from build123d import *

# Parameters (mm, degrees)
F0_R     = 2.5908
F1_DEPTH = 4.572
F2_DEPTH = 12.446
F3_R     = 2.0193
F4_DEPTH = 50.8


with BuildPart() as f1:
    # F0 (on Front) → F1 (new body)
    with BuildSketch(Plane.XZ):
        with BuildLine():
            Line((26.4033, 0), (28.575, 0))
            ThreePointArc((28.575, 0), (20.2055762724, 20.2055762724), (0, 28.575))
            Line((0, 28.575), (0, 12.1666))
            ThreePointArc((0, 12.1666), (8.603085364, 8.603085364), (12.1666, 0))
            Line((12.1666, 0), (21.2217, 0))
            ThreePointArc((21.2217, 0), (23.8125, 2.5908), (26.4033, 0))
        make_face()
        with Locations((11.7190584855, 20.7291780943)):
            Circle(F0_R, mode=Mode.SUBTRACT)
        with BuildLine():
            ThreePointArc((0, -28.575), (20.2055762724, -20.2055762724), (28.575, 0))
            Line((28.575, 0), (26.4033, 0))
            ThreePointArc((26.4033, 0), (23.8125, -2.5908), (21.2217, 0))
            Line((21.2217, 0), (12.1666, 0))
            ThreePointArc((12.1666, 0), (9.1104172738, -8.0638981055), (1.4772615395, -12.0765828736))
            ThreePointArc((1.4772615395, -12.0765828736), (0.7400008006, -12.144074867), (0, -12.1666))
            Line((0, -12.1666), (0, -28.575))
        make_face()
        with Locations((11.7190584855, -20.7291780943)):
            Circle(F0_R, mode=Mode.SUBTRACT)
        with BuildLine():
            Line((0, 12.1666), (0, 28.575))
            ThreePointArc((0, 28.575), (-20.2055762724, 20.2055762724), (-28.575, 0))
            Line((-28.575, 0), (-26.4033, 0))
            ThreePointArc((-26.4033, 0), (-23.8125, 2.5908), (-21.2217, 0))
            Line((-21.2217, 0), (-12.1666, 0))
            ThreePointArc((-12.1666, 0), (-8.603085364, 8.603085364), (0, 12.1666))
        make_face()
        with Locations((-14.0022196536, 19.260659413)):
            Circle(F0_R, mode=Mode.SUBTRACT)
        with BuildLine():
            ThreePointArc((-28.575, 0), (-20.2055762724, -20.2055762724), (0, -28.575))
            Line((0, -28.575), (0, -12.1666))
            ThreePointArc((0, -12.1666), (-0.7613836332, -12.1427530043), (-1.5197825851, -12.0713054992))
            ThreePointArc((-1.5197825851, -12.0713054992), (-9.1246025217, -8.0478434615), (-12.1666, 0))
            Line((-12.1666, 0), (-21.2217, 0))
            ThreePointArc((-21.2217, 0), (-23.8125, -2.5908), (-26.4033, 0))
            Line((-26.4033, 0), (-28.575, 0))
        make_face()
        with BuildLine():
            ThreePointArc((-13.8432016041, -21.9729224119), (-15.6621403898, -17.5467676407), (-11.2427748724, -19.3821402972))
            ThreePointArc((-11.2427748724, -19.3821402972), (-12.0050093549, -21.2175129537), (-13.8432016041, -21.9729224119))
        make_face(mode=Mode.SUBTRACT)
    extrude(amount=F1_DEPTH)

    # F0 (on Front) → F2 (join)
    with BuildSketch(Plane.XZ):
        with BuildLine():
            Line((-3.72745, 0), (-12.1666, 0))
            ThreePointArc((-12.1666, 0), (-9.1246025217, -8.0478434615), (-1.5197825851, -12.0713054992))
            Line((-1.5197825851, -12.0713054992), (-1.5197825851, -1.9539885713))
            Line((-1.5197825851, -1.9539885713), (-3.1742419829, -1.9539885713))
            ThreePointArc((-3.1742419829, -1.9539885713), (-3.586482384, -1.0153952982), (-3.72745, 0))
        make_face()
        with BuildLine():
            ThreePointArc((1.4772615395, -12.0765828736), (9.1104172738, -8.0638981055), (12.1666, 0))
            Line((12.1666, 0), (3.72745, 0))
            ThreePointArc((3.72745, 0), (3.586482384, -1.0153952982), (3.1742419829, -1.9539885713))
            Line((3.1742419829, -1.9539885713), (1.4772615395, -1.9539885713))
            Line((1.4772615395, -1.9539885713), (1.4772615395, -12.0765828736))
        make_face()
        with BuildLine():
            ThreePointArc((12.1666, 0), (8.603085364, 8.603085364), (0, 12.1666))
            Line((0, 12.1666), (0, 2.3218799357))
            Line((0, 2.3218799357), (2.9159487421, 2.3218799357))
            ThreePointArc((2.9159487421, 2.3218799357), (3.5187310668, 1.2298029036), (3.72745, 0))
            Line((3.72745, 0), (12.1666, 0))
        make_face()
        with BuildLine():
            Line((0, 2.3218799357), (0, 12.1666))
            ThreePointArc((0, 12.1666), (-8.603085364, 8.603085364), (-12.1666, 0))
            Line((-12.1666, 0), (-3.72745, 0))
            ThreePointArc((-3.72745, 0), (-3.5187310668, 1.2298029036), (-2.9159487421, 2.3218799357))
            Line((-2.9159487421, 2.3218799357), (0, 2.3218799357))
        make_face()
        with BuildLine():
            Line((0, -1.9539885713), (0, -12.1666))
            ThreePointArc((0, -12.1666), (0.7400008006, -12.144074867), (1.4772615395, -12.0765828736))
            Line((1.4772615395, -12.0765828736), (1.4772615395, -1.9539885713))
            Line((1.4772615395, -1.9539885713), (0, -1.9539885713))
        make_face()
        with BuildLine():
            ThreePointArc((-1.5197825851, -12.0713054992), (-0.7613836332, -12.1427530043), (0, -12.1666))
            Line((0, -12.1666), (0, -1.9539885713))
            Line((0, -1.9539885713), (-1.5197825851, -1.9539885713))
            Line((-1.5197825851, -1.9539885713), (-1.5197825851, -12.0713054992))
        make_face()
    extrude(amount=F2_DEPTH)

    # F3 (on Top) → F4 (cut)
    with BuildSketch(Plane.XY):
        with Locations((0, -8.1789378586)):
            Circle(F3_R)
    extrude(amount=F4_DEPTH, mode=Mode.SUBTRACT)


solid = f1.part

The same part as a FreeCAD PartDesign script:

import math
import FreeCAD as App
import Part
import Sketcher
from FreeCAD import Vector
Q = App.Units.Quantity

doc = App.newDocument("Part")
params = doc.addObject("Spreadsheet::Sheet", "Params")
for row, (alias, value) in enumerate([
    ("sketch1_diameter", "0.204 in"),
    ("sketch1_radius", "1.125 in"),
    ("sketch1_radius2", "0.479 in"),
    ("pad1_length", "0.18 in"),
    ("sketch2_radius", "0.479 in"),
    ("pad2_length", "0.49 in"),
    ("sketch3_diameter", "0.159 in"),
    ("pocket1_length", "2 in"),
], start=1):
    params.set(f"A{row}", alias)
    params.set(f"B{row}", "=" + value)
    params.setAlias(f"B{row}", alias)

body = doc.addObject("PartDesign::Body", "Body")

sketch1 = body.newObject("Sketcher::SketchObject", "Sketch")
sketch1.AttachmentSupport = (doc.getObject("XZ_Plane"), [""])
sketch1.MapMode = "FlatFace"
sketch1.addGeometry([
    Part.ArcOfCircle(Part.Circle(Vector(0, 0, 0), Vector(0, 0, 1), 28.6), math.radians(0), math.radians(90)),
    Part.ArcOfCircle(Part.Circle(Vector(0, 0, 0), Vector(0, 0, 1), 28.6), math.radians(90), math.radians(180)),
    Part.ArcOfCircle(Part.Circle(Vector(0, 0, 0), Vector(0, 0, 1), 28.6), math.radians(180), math.radians(270)),
    Part.ArcOfCircle(Part.Circle(Vector(0, 0, 0), Vector(0, 0, 1), 28.6), math.radians(-90), math.radians(0)),
    Part.ArcOfCircle(Part.Circle(Vector(-13.8, -19.4, 0), Vector(0, 0, 1), 2.6), math.radians(-90), math.radians(0)),
    Part.ArcOfCircle(Part.Circle(Vector(-13.8, -19.4, 0), Vector(0, 0, 1), 2.6), math.radians(0), math.radians(270)),
    Part.Circle(Vector(11.7, -20.7, 0), Vector(0, 0, 1), 2.6),
    Part.Circle(Vector(-23.8, 0, 0), Vector(0, 0, 1), 2.6),
    Part.Circle(Vector(-14, 19.3, 0), Vector(0, 0, 1), 2.6),
    Part.ArcOfCircle(Part.Circle(Vector(0, 0, 0), Vector(0, 0, 1), 12.2), math.radians(-90), math.radians(-83.03)),
    Part.ArcOfCircle(Part.Circle(Vector(0, 0, 0), Vector(0, 0, 1), 12.2), math.radians(-97.18), math.radians(-90)),
    Part.ArcOfCircle(Part.Circle(Vector(0, 0, 0), Vector(0, 0, 1), 12.2), math.radians(90), math.radians(263)),
    Part.ArcOfCircle(Part.Circle(Vector(0, 0, 0), Vector(0, 0, 1), 12.2), math.radians(0), math.radians(90)),
    Part.ArcOfCircle(Part.Circle(Vector(0, 0, 0), Vector(0, 0, 1), 12.2), math.radians(-83), math.radians(0)),
    Part.Circle(Vector(23.8, 0, 0), Vector(0, 0, 1), 2.6),
    Part.Circle(Vector(11.7, 20.7, 0), Vector(0, 0, 1), 2.6),
], False)
sketch1.addConstraint([
    Sketcher.Constraint("Tangent", 0, 2, 1, 1),
    Sketcher.Constraint("Tangent", 1, 2, 2, 1),
    Sketcher.Constraint("Tangent", 2, 2, 3, 1),
    Sketcher.Constraint("Tangent", 3, 2, 0, 1),
    Sketcher.Constraint("Tangent", 4, 1, 5, 2),
    Sketcher.Constraint("Coincident", 5, 1, 4, 2),
    Sketcher.Constraint("Tangent", 9, 1, 10, 2),
    Sketcher.Constraint("Tangent", 10, 1, 11, 2),
    Sketcher.Constraint("Tangent", 11, 1, 12, 2),
    Sketcher.Constraint("Tangent", 12, 1, 13, 2),
    Sketcher.Constraint("Tangent", 13, 1, 9, 2),
    Sketcher.Constraint("Coincident", 0, 3, -1, 1),
    Sketcher.Constraint("Coincident", 9, 3, -1, 1),
    Sketcher.Constraint("Coincident", 11, 3, -1, 1),
    Sketcher.Constraint("Equal", 0, 1),
    Sketcher.Constraint("Equal", 5, 6),
    Sketcher.Constraint("Equal", 6, 7),
    Sketcher.Constraint("Equal", 7, 8),
    Sketcher.Constraint("Equal", 8, 14),
    Sketcher.Constraint("Equal", 14, 15),
    Sketcher.Constraint("Symmetric", 7, 3, 14, 3, -1, 1),
    Sketcher.Constraint("Symmetric", 6, 3, 15, 3, -1),
    Sketcher.Constraint("PointOnObject", 7, 3, -1),
    Sketcher.Constraint("PointOnObject", 0, 2, -2),
    Sketcher.Constraint("PointOnObject", 1, 2, -1),
    Sketcher.Constraint("PointOnObject", 2, 2, -2),
    Sketcher.Constraint("PointOnObject", 3, 2, -1),
    Sketcher.Constraint("PointOnObject", 9, 1, -2),
    Sketcher.Constraint("PointOnObject", 11, 1, -2),
    Sketcher.Constraint("PointOnObject", 12, 1, -1),
    Sketcher.Constraint("Horizontal", 4, 3, 5, 1),
    Sketcher.Constraint("Diameter", 6, Q("0.204 in")),
    Sketcher.Constraint("Radius", 0, Q("1.125 in")),
    Sketcher.Constraint("Radius", 9, Q("0.479 in")),
    Sketcher.Constraint("DistanceX", 7, 3, -1, 1, Q("0.9375 in")),
    Sketcher.Constraint("DistanceX", 4, 1, -1, 1, Q("13.843202 mm")),
    Sketcher.Constraint("DistanceY", 4, 3, -1, 1, Q("19.38214 mm")),
    Sketcher.Constraint("DistanceX", -1, 1, 6, 3, Q("11.719058 mm")),
    Sketcher.Constraint("DistanceY", 6, 3, -1, 1, Q("20.729178 mm")),
    Sketcher.Constraint("DistanceX", 8, 3, -1, 1, Q("14.00222 mm")),
    Sketcher.Constraint("DistanceY", -1, 1, 8, 3, Q("19.260659 mm")),
    Sketcher.Constraint("DistanceX", -1, 1, 13, 1, Q("1.477262 mm")),
    Sketcher.Constraint("DistanceX", 4, 3, -1, 1, Q("13.833575 mm")),
    Sketcher.Constraint("DistanceX", 10, 1, -1, 1, Q("1.519783 mm")),
])
sketch1.setExpression("Constraints[31]", "Params.sketch1_diameter")
sketch1.setExpression("Constraints[32]", "Params.sketch1_radius")
sketch1.setExpression("Constraints[33]", "Params.sketch1_radius2")
pad1 = body.newObject("PartDesign::Pad", "Pad")
pad1.Profile = sketch1
pad1.setExpression("Length", "Params.pad1_length")

sketch2 = body.newObject("Sketcher::SketchObject", "Sketch001")
sketch2.AttachmentSupport = (doc.getObject("XZ_Plane"), [""])
sketch2.MapMode = "FlatFace"
sketch2.addGeometry([
    Part.ArcOfCircle(Part.Circle(Vector(0, 0, 0), Vector(0, 0, 1), 12.2), math.radians(-90), math.radians(-83.03)),
    Part.ArcOfCircle(Part.Circle(Vector(0, 0, 0), Vector(0, 0, 1), 12.2), math.radians(-83), math.radians(0)),
    Part.ArcOfCircle(Part.Circle(Vector(0, 0, 0), Vector(0, 0, 1), 12.2), math.radians(0), math.radians(90)),
    Part.ArcOfCircle(Part.Circle(Vector(0, 0, 0), Vector(0, 0, 1), 12.2), math.radians(90), math.radians(263)),
    Part.ArcOfCircle(Part.Circle(Vector(0, 0, 0), Vector(0, 0, 1), 12.2), math.radians(-97.18), math.radians(-90)),
    Part.ArcOfCircle(Part.Circle(Vector(0, 0, 0), Vector(0, 0, 1), 3.7), math.radians(180), math.radians(212)),
    Part.ArcOfCircle(Part.Circle(Vector(0, 0, 0), Vector(0, 0, 1), 3.7), math.radians(141), math.radians(180)),
    Part.LineSegment(Vector(-2.9, 2.3, 0), Vector(2.9, 2.3, 0)),
    Part.ArcOfCircle(Part.Circle(Vector(0, 0, 0), Vector(0, 0, 1), 3.7), math.radians(0), math.radians(39)),
    Part.ArcOfCircle(Part.Circle(Vector(0, 0, 0), Vector(0, 0, 1), 3.7), math.radians(-32), math.radians(0)),
    Part.LineSegment(Vector(3.2, -2, 0), Vector(-3.2, -2, 0)),
], False)
sketch2.addConstraint([
    Sketcher.Constraint("Tangent", 0, 2, 1, 1),
    Sketcher.Constraint("Tangent", 1, 2, 2, 1),
    Sketcher.Constraint("Tangent", 2, 2, 3, 1),
    Sketcher.Constraint("Tangent", 3, 2, 4, 1),
    Sketcher.Constraint("Tangent", 4, 2, 0, 1),
    Sketcher.Constraint("Tangent", 5, 1, 6, 2),
    Sketcher.Constraint("Coincident", 6, 1, 7, 1),
    Sketcher.Constraint("Coincident", 7, 2, 8, 2),
    Sketcher.Constraint("Tangent", 8, 1, 9, 2),
    Sketcher.Constraint("Coincident", 9, 1, 10, 1),
    Sketcher.Constraint("Coincident", 10, 2, 5, 2),
    Sketcher.Constraint("Horizontal", 7),
    Sketcher.Constraint("Horizontal", 10),
    Sketcher.Constraint("Coincident", 0, 3, -1, 1),
    Sketcher.Constraint("Coincident", 2, 3, -1, 1),
    Sketcher.Constraint("Coincident", 5, 3, -1, 1),
    Sketcher.Constraint("Coincident", 8, 3, -1, 1),
    Sketcher.Constraint("Equal", 5, 6),
    Sketcher.Constraint("Equal", 6, 8),
    Sketcher.Constraint("Equal", 8, 9),
    Sketcher.Constraint("PointOnObject", 1, 2, -1),
    Sketcher.Constraint("PointOnObject", 2, 2, -2),
    Sketcher.Constraint("PointOnObject", 4, 2, -2),
    Sketcher.Constraint("PointOnObject", 5, 1, -1),
    Sketcher.Constraint("PointOnObject", 8, 1, -1),
    Sketcher.Constraint("Radius", 0, Q("0.479 in")),
    Sketcher.Constraint("Radius", 5, Q("3.72745 mm")),
    Sketcher.Constraint("DistanceX", 5, 1, 6, 1, Q("0.811501 mm")),
    Sketcher.Constraint("DistanceX", 10, 2, 10, 1, Q("6.348484 mm")),
    Sketcher.Constraint("DistanceX", -1, 1, 0, 2, Q("1.477262 mm")),
    Sketcher.Constraint("DistanceX", 3, 2, -1, 1, Q("1.519783 mm")),
])
sketch2.setExpression("Constraints[25]", "Params.sketch2_radius")
pad2 = body.newObject("PartDesign::Pad", "Pad001")
pad2.Profile = sketch2
pad2.setExpression("Length", "Params.pad2_length")

sketch3 = body.newObject("Sketcher::SketchObject", "Sketch002")
sketch3.AttachmentSupport = (doc.getObject("XY_Plane"), [""])
sketch3.MapMode = "FlatFace"
sketch3.addGeometry(Part.Circle(Vector(0, -8.2, 0), Vector(0, 0, 1), 2), False)
sketch3.addConstraint([
    Sketcher.Constraint("PointOnObject", 0, 3, -2),
    Sketcher.Constraint("Diameter", 0, Q("0.159 in")),
    Sketcher.Constraint("DistanceY", 0, 3, -1, 1, Q("8.178938 mm")),
])
sketch3.setExpression("Constraints[1]", "Params.sketch3_diameter")
pocket1 = body.newObject("PartDesign::Pocket", "Pocket")
pocket1.Profile = sketch3
pocket1.setExpression("Length", "Params.pocket1_length")
pocket1.Reversed = True

doc.recompute()
